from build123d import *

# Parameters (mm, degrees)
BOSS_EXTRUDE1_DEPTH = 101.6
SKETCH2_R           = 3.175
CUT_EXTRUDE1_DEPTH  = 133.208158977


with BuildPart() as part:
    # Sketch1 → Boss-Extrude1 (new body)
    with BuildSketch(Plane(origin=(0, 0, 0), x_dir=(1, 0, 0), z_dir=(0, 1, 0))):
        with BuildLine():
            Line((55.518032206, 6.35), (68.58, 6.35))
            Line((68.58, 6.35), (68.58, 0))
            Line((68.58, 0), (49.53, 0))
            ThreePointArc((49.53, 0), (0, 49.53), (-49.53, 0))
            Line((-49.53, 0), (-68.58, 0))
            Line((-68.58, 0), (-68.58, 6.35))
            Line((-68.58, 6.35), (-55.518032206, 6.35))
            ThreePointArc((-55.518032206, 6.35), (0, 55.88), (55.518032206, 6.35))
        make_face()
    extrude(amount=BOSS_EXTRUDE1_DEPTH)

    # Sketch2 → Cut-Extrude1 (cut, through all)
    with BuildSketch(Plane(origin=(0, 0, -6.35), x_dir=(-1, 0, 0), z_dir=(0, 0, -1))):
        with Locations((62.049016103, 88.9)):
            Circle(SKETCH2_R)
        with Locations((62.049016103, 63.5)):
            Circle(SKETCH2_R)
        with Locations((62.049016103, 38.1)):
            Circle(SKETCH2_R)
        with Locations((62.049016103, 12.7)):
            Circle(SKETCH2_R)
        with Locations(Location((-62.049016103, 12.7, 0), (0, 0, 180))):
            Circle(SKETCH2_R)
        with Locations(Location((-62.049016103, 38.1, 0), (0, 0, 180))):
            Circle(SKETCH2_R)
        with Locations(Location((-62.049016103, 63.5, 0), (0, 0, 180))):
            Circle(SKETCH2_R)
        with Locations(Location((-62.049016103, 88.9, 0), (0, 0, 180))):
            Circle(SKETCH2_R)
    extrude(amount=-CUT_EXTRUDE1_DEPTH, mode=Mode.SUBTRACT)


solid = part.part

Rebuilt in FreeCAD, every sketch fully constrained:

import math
import FreeCAD as App
import Part
import Sketcher
from FreeCAD import Vector
Q = App.Units.Quantity

doc = App.newDocument("Part")
body = doc.addObject("PartDesign::Body", "Body")

sketch1 = body.newObject("Sketcher::SketchObject", "Sketch")
sketch1.AttachmentSupport = (doc.getObject("XZ_Plane"), [""])
sketch1.MapMode = "FlatFace"
sketch1.addGeometry([
    Part.LineSegment(Vector(69, -6, 0), Vector(56, -6, 0)),
    Part.ArcOfCircle(Part.Circle(Vector(0, 0, 0), Vector(0, 0, 1), 56), math.radians(-173), math.radians(-7)),
    Part.LineSegment(Vector(-56, -6, 0), Vector(-69, -6, 0)),
    Part.LineSegment(Vector(-69, -6, 0), Vector(-69, 0, 0)),
    Part.LineSegment(Vector(-69, 0, 0), Vector(-50, 0, 0)),
    Part.ArcOfCircle(Part.Circle(Vector(0, 0, 0), Vector(0, 0, 1), 50), math.radians(180), math.radians(360)),
    Part.LineSegment(Vector(50, 0, 0), Vector(69, 0, 0)),
    Part.LineSegment(Vector(69, 0, 0), Vector(69, -6, 0)),
], False)
sketch1.addConstraint([
    Sketcher.Constraint("Coincident", 0, 2, 1, 2),
    Sketcher.Constraint("Coincident", 1, 1, 2, 1),
    Sketcher.Constraint("Coincident", 2, 2, 3, 1),
    Sketcher.Constraint("Coincident", 3, 2, 4, 1),
    Sketcher.Constraint("Coincident", 4, 2, 5, 1),
    Sketcher.Constraint("Coincident", 5, 2, 6, 1),
    Sketcher.Constraint("Coincident", 6, 2, 7, 1),
    Sketcher.Constraint("Coincident", 7, 2, 0, 1),
    Sketcher.Constraint("Horizontal", 0),
    Sketcher.Constraint("Horizontal", 2),
    Sketcher.Constraint("Vertical", 3),
    Sketcher.Constraint("Horizontal", 4),
    Sketcher.Constraint("Horizontal", 6),
    Sketcher.Constraint("Vertical", 7),
    Sketcher.Constraint("Coincident", 1, 3, -1, 1),
    Sketcher.Constraint("Coincident", 5, 3, -1, 1),
    Sketcher.Constraint("Symmetric", 3, 2, 6, 2, -1, 1),
    Sketcher.Constraint("PointOnObject", 3, 2, -1),
    Sketcher.Constraint("Horizontal", 0, 2, 1, 1),
    Sketcher.Constraint("Radius", 1, Q("2.2 in")),
    Sketcher.Constraint("Radius", 5, Q("1.95 in")),
    Sketcher.Constraint("DistanceX", 4, 1, 4, 2, Q("0.75 in")),
    Sketcher.Constraint("DistanceY", 3, 1, 3, 2, Q("0.25 in")),
])
pad1 = body.newObject("PartDesign::Pad", "Pad")
pad1.Profile = sketch1
pad1.Length = Q("4 in")
pad1.Reversed = True

sketch2 = body.newObject("Sketcher::SketchObject", "Sketch001")
sketch2.AttachmentSupport = (doc.getObject("XY_Plane"), [""])
sketch2.MapMode = "FlatFace"
sketch2.AttachmentOffset = App.Placement(Vector(0, 0, -0.25 * 25.4), App.Rotation())
sketch2.addGeometry([
    Part.Circle(Vector(-62, 88.9, 0), Vector(0, 0, 1), 3.2),
    Part.Circle(Vector(-62, 63.5, 0), Vector(0, 0, 1), 3.2),
    Part.Circle(Vector(-62, 38.1, 0), Vector(0, 0, 1), 3.2),
    Part.Circle(Vector(-62, 12.7, 0), Vector(0, 0, 1), 3.2),
    Part.Circle(Vector(62, 12.7, 0), Vector(0, 0, 1), 3.2),
    Part.Circle(Vector(62, 38.1, 0), Vector(0, 0, 1), 3.2),
    Part.Circle(Vector(62, 63.5, 0), Vector(0, 0, 1), 3.2),
    Part.Circle(Vector(62, 88.9, 0), Vector(0, 0, 1), 3.2),
], False)
sketch2.addConstraint([
    Sketcher.Constraint("Equal", 0, 1),
    Sketcher.Constraint("Equal", 1, 2),
    Sketcher.Constraint("Equal", 2, 3),
    Sketcher.Constraint("Equal", 3, 4),
    Sketcher.Constraint("Equal", 4, 5),
    Sketcher.Constraint("Equal", 5, 6),
    Sketcher.Constraint("Equal", 6, 7),
    Sketcher.Constraint("Symmetric", 3, 3, 4, 3, -2),
    Sketcher.Constraint("Symmetric", 2, 3, 5, 3, -2),
    Sketcher.Constraint("Symmetric", 1, 3, 6, 3, -2),
    Sketcher.Constraint("Symmetric", 0, 3, 7, 3, -2),
    Sketcher.Constraint("Vertical", 0, 3, 1, 3),
    Sketcher.Constraint("Vertical", 1, 3, 2, 3),
    Sketcher.Constraint("Vertical", 2, 3, 3, 3),
    Sketcher.Constraint("Diameter", 0, Q("0.25 in")),
    Sketcher.Constraint("DistanceY", 1, 3, 0, 3, Q("1 in")),
    Sketcher.Constraint("DistanceY", 2, 3, 1, 3, Q("1 in")),
    Sketcher.Constraint("DistanceY", 3, 3, 2, 3, Q("1 in")),
    Sketcher.Constraint("DistanceY", -1, 1, 0, 3, Q("3.5 in")),
    Sketcher.Constraint("DistanceX", 0, 3, -1, 1, 62.049016),
])
pocket1 = body.newObject("PartDesign::Pocket", "Pocket")
pocket1.Profile = sketch2
pocket1.Type = "ThroughAll"
pocket1.Reversed = True

doc.recompute()
